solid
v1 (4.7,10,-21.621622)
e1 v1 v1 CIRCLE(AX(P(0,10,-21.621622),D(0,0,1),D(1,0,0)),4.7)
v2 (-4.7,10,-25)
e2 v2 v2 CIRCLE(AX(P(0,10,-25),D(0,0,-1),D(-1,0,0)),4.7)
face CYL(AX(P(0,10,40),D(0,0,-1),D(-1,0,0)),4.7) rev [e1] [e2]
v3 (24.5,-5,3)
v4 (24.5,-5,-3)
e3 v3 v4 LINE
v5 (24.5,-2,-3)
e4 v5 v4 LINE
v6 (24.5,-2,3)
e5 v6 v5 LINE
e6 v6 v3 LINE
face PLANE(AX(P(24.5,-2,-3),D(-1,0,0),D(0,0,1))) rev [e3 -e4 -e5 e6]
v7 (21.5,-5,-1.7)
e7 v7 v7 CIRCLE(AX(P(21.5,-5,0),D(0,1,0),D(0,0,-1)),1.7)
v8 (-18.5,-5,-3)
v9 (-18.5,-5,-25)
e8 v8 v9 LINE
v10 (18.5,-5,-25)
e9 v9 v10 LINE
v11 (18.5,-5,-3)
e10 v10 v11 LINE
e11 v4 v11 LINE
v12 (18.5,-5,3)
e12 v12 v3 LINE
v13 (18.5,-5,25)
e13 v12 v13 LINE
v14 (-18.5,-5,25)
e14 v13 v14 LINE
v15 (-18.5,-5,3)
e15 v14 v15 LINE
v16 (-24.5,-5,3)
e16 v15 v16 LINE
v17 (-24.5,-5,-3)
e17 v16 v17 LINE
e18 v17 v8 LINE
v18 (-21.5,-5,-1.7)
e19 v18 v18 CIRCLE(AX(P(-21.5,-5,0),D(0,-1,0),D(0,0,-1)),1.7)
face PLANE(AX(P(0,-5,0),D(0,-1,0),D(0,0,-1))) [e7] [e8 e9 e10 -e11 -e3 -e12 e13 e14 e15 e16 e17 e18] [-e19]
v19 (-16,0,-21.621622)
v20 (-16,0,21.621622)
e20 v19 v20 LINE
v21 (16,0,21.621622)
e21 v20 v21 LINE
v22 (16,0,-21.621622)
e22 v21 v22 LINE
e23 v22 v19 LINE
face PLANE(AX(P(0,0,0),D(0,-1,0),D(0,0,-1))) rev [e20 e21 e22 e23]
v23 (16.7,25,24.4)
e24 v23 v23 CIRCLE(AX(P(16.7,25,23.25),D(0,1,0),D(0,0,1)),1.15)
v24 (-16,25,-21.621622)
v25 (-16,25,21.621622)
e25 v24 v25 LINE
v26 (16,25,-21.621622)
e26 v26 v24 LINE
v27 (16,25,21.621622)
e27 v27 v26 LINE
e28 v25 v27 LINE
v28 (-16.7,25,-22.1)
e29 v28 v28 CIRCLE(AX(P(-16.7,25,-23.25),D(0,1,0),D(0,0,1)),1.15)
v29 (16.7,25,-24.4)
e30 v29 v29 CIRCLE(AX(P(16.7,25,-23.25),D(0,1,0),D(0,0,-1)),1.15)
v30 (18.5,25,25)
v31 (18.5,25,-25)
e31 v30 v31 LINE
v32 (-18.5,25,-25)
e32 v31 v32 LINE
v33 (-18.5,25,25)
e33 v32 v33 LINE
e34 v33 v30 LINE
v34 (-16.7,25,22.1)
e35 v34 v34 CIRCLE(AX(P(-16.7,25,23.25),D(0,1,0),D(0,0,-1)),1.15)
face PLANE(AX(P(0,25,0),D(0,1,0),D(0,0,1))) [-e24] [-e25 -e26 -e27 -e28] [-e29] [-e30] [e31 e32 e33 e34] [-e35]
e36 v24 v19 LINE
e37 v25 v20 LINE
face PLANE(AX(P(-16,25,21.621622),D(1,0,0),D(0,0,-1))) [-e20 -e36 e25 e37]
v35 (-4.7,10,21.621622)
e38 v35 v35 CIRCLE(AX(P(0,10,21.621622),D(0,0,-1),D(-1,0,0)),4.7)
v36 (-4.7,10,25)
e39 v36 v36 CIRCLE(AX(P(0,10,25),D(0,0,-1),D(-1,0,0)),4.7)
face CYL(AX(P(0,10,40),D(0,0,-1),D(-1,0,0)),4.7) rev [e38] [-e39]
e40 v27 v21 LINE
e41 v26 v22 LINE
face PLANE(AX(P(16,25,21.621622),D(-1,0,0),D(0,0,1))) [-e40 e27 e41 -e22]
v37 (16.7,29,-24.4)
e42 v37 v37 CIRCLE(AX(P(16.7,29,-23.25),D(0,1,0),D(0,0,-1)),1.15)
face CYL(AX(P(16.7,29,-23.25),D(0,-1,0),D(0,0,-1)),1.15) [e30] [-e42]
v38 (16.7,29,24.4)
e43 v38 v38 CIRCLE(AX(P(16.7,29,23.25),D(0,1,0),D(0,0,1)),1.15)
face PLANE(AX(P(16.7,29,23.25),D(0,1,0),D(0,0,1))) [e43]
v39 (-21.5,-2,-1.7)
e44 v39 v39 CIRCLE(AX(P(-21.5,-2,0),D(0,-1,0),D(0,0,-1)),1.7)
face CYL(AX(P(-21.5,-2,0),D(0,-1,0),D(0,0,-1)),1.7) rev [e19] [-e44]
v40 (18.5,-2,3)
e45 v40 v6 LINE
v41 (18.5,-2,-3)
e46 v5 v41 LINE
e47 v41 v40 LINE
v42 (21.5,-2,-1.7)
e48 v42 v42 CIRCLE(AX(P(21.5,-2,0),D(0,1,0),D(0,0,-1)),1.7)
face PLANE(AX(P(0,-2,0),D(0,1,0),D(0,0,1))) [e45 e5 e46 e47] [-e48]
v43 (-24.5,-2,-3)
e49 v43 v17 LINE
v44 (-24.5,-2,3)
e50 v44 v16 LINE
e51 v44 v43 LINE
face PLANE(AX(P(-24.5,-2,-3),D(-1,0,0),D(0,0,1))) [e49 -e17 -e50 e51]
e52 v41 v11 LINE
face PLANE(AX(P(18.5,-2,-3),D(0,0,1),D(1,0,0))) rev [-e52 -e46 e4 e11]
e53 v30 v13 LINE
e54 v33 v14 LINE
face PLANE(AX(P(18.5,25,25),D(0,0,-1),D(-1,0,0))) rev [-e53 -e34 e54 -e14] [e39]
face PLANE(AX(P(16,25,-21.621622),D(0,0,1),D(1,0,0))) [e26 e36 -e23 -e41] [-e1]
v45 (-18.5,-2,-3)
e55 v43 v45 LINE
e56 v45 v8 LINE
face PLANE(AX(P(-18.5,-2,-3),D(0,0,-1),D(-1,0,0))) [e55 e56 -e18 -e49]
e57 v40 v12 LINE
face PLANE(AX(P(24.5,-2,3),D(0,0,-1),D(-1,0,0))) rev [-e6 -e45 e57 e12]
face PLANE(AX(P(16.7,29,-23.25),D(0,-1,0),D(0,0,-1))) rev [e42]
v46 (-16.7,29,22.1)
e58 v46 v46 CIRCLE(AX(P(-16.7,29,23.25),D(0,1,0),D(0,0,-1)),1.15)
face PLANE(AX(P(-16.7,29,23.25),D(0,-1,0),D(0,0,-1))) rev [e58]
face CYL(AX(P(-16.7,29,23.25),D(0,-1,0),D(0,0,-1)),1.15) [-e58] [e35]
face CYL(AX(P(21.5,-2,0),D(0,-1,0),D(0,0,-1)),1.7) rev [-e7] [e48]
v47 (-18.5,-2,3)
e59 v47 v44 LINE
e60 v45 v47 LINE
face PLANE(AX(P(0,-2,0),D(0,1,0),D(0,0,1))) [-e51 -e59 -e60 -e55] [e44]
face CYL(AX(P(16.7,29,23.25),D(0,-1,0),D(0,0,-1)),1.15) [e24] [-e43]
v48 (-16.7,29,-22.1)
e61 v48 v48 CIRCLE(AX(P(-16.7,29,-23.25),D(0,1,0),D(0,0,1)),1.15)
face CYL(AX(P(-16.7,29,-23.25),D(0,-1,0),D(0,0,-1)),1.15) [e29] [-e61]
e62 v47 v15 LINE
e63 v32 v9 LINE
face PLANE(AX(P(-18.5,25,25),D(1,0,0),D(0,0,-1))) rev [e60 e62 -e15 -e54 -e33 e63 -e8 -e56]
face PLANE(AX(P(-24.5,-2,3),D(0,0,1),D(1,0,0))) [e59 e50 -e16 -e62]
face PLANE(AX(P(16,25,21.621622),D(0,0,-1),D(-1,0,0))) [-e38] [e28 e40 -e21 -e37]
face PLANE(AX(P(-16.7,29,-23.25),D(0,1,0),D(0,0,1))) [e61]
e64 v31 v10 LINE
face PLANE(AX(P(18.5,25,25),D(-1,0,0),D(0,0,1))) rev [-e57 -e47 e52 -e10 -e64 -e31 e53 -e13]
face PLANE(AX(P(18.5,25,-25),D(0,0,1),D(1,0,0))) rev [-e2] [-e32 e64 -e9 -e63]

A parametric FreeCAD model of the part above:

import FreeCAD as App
import Part
import Sketcher
from FreeCAD import Vector
Q = App.Units.Quantity


def add_polygon(sketch, points):
    """Adds a closed chain of lines whose ends are joined by coincident constraints."""
    first, n = sketch.GeometryCount, len(points)
    for a, b in zip(points, points[1:] + points[:1]):
        sketch.addGeometry(Part.LineSegment(App.Vector(*a, 0), App.Vector(*b, 0)), False)
    for i in range(n):
        sketch.addConstraint(Sketcher.Constraint("Coincident", first + i, 2, first + (i + 1) % n, 1))

doc = App.newDocument("Part")
body = doc.addObject("PartDesign::Body", "Body")

sketch1 = body.newObject("Sketcher::SketchObject", "Sketch")
sketch1.AttachmentSupport = (doc.getObject("XZ_Plane"), [""])
sketch1.MapMode = "FlatFace"
add_polygon(sketch1, [(-18, -25), (-18, 25), (18, 25), (18, -25)])
add_polygon(sketch1, [(16, 22), (-16, 22), (-16, -22), (16, -22)])
sketch1.addConstraint(Sketcher.Constraint("Vertical", 0))
sketch1.addConstraint(Sketcher.Constraint("Horizontal", 1))
sketch1.addConstraint(Sketcher.Constraint("Vertical", 2))
sketch1.addConstraint(Sketcher.Constraint("Horizontal", 3))
sketch1.addConstraint(Sketcher.Constraint("Horizontal", 4))
sketch1.addConstraint(Sketcher.Constraint("Vertical", 5))
sketch1.addConstraint(Sketcher.Constraint("Horizontal", 6))
sketch1.addConstraint(Sketcher.Constraint("Vertical", 7))
sketch1.addConstraint(Sketcher.Constraint("Symmetric", 0, 2, 2, 2, -1, 1))
sketch1.addConstraint(Sketcher.Constraint("Symmetric", 4, 2, 6, 2, -1, 1))
sketch1.addConstraint(Sketcher.Constraint("DistanceX", 1, 1, 1, 2, Q("37 mm")))
sketch1.addConstraint(Sketcher.Constraint("DistanceX", 4, 2, 4, 1, Q("32 mm")))
sketch1.addConstraint(Sketcher.Constraint("DistanceY", 0, 1, 0, 2, Q("50 mm")))
sketch1.addConstraint(Sketcher.Constraint("DistanceY", 5, 2, 5, 1, Q("43.243243 mm")))
pad1 = body.newObject("PartDesign::Pad", "Pad")
pad1.Profile = sketch1
pad1.Length = 25
pad1.Reversed = True

sketch2 = body.newObject("Sketcher::SketchObject", "Sketch001")
sketch2.AttachmentSupport = (doc.getObject("XZ_Plane"), [""])
sketch2.MapMode = "FlatFace"
add_polygon(sketch2, [(-18, 25), (-18, -25), (18, -25), (18, 25)])
sketch2.addConstraint(Sketcher.Constraint("Vertical", 0))
sketch2.addConstraint(Sketcher.Constraint("Horizontal", 1))
sketch2.addConstraint(Sketcher.Constraint("Vertical", 2))
sketch2.addConstraint(Sketcher.Constraint("Horizontal", 3))
sketch2.addConstraint(Sketcher.Constraint("Symmetric", 0, 2, 2, 2, -1, 1))
sketch2.addConstraint(Sketcher.Constraint("DistanceX", 1, 1, 1, 2, Q("37 mm")))
sketch2.addConstraint(Sketcher.Constraint("DistanceY", 0, 2, 0, 1, Q("50 mm")))
pad2 = body.newObject("PartDesign::Pad", "Pad001")
pad2.Profile = sketch2
pad2.Length = 5

sketch3 = body.newObject("Sketcher::SketchObject", "Sketch002")
sketch3.AttachmentSupport = (doc.getObject("XY_Plane"), [""])
sketch3.MapMode = "FlatFace"
sketch3.AttachmentOffset = App.Placement(Vector(0, 0, -25), App.Rotation())
sketch3.addGeometry(Part.Circle(Vector(0, 10, 0), Vector(0, 0, 1), 4.7), False)
sketch3.addConstraint(Sketcher.Constraint("PointOnObject", 0, 3, -2))
sketch3.addConstraint(Sketcher.Constraint("Diameter", 0, Q("9.4 mm")))
sketch3.addConstraint(Sketcher.Constraint("DistanceY", -1, 1, 0, 3, Q("10 mm")))
pocket1 = body.newObject("PartDesign::Pocket", "Pocket")
pocket1.Profile = sketch3
pocket1.Length = 65
pocket1.Reversed = True

sketch4 = body.newObject("Sketcher::SketchObject", "Sketch003")
sketch4.AttachmentSupport = (doc.getObject("XZ_Plane"), [""])
sketch4.MapMode = "FlatFace"
sketch4.AttachmentOffset = App.Placement(Vector(0, 0, -25), App.Rotation())
sketch4.addGeometry(Part.Circle(Vector(-16.7, -23.2, 0), Vector(0, 0, 1), 1.1), False)
sketch4.addGeometry(Part.Circle(Vector(16.7, -23.2, 0), Vector(0, 0, 1), 1.1), False)
sketch4.addGeometry(Part.Circle(Vector(16.7, 23.2, 0), Vector(0, 0, 1), 1.1), False)
sketch4.addGeometry(Part.Circle(Vector(-16.7, 23.2, 0), Vector(0, 0, 1), 1.1), False)
sketch4.addConstraint(Sketcher.Constraint("Equal", 0, 1))
sketch4.addConstraint(Sketcher.Constraint("Equal", 1, 2))
sketch4.addConstraint(Sketcher.Constraint("Equal", 2, 3))
sketch4.addConstraint(Sketcher.Constraint("Symmetric", 0, 3, 2, 3, -1, 1))
sketch4.addConstraint(Sketcher.Constraint("Symmetric", 1, 3, 3, 3, -1, 1))
sketch4.addConstraint(Sketcher.Constraint("Symmetric", 0, 3, 1, 3, -2))
sketch4.addConstraint(Sketcher.Constraint("Diameter", 0, Q("2.3 mm")))
sketch4.addConstraint(Sketcher.Constraint("DistanceX", 0, 3, -1, 1, Q("16.7 mm")))
sketch4.addConstraint(Sketcher.Constraint("DistanceY", 1, 3, 2, 3, Q("46.5 mm")))
pad3 = body.newObject("PartDesign::Pad", "Pad002")
pad3.Profile = sketch4
pad3.Length = 4
pad3.Reversed = True

sketch5 = body.newObject("Sketcher::SketchObject", "Sketch004")
sketch5.AttachmentSupport = (doc.getObject("XZ_Plane"), [""])
sketch5.MapMode = "FlatFace"
sketch5.AttachmentOffset = App.Placement(Vector(0, 0, 5), App.Rotation())
add_polygon(sketch5, [(-18.5, 3), (-24.5, 3), (-24.5, -3), (-18.5, -3)])
sketch5.addGeometry(Part.Circle(Vector(-21.5, 0, 0), Vector(0, 0, 1), 1.7), False)
sketch5.addConstraint(Sketcher.Constraint("Horizontal", 0))
sketch5.addConstraint(Sketcher.Constraint("Vertical", 1))
sketch5.addConstraint(Sketcher.Constraint("Horizontal", 2))
sketch5.addConstraint(Sketcher.Constraint("Vertical", 3))
sketch5.addConstraint(Sketcher.Constraint("PointOnObject", 4, 3, -1))
sketch5.addConstraint(Sketcher.Constraint("Equal", 2, 1))
sketch5.addConstraint(Sketcher.Constraint("Diameter", 4, Q("3.4 mm")))
sketch5.addConstraint(Sketcher.Constraint("DistanceX", 0, 2, 0, 1, Q("6 mm")))
sketch5.addConstraint(Sketcher.Constraint("DistanceY", -1, 1, 0, 2, Q("3 mm")))
sketch5.addConstraint(Sketcher.Constraint("DistanceX", 0, 2, 4, 3, Q("3 mm")))
sketch5.addConstraint(Sketcher.Constraint("DistanceX", 4, 3, -1, 1, Q("21.5 mm")))
pad4 = body.newObject("PartDesign::Pad", "Pad003")
pad4.Profile = sketch5
pad4.Length = 3
pad4.Reversed = True
doc.recompute()

mirrored = body.newObject("PartDesign::Mirrored", "Mirrored")
mirrored.Originals = [pad4]
mirrored.MirrorPlane = (doc.getObject("YZ_Plane"), [""])
body.Tip = mirrored

doc.recompute()
